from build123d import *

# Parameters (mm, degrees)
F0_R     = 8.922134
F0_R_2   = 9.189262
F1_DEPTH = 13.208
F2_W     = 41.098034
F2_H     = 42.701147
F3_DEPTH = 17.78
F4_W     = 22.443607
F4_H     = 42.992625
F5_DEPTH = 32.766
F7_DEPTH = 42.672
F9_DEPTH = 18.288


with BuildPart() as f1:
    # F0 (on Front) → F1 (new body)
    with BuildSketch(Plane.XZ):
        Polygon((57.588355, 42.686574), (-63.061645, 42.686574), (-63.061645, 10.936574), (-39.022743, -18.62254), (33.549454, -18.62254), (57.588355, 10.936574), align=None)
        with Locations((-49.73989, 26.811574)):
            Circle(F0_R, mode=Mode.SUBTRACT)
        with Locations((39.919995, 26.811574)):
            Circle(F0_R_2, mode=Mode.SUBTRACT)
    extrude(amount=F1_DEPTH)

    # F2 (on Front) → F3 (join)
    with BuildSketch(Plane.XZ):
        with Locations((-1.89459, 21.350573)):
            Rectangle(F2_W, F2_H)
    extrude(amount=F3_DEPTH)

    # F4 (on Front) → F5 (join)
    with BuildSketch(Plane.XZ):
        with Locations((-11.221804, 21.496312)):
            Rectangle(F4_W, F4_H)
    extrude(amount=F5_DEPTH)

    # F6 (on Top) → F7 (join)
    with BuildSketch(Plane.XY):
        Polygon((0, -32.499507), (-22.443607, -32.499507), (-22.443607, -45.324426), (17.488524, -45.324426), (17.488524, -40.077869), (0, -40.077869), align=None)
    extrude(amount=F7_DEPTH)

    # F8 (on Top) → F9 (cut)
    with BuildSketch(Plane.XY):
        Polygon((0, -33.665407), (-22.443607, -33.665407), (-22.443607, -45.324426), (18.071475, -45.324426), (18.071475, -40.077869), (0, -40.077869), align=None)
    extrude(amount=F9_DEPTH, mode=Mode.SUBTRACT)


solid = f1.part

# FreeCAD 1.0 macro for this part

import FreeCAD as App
import Part
import Sketcher

V = App.Vector
Q = App.Units.Quantity

doc = App.newDocument("Part")
body = doc.addObject("PartDesign::Body", "Body")

# Sketch on XZ plane
sketch1 = doc.addObject("Sketcher::SketchObject", "Sketch")
body.addObject(sketch1)
sketch1.AttachmentSupport = (doc.XZ_Plane, [""])
sketch1.MapMode = "FlatFace"
sketch1.addGeometry(Part.LineSegment(V(58, 43, 0), V(-63, 43, 0)), False)
sketch1.addGeometry(Part.LineSegment(V(-63, 43, 0), V(-63, 11, 0)), False)
sketch1.addGeometry(Part.LineSegment(V(-63, 11, 0), V(-39, -19, 0)), False)
sketch1.addGeometry(Part.LineSegment(V(-39, -19, 0), V(34, -19, 0)), False)
sketch1.addGeometry(Part.LineSegment(V(34, -19, 0), V(58, 11, 0)), False)
sketch1.addGeometry(Part.LineSegment(V(58, 11, 0), V(58, 43, 0)), False)
sketch1.addGeometry(Part.Circle(V(-50, 27, 0), V(0, 0, 1), 9), False)
sketch1.addGeometry(Part.Circle(V(40, 27, 0), V(0, 0, 1), 9), False)
sketch1.addConstraint(Sketcher.Constraint("Coincident", 0, 2, 1, 1))
sketch1.addConstraint(Sketcher.Constraint("Coincident", 1, 2, 2, 1))
sketch1.addConstraint(Sketcher.Constraint("Coincident", 2, 2, 3, 1))
sketch1.addConstraint(Sketcher.Constraint("Coincident", 3, 2, 4, 1))
sketch1.addConstraint(Sketcher.Constraint("Coincident", 4, 2, 5, 1))
sketch1.addConstraint(Sketcher.Constraint("Coincident", 5, 2, 0, 1))
sketch1.addConstraint(Sketcher.Constraint("Horizontal", 0))
sketch1.addConstraint(Sketcher.Constraint("Vertical", 1))
sketch1.addConstraint(Sketcher.Constraint("Horizontal", 3))
sketch1.addConstraint(Sketcher.Constraint("Vertical", 5))
sketch1.addConstraint(Sketcher.Constraint("Horizontal", 6, 3, 7, 3))
sketch1.addConstraint(Sketcher.Constraint("Horizontal", 1, 2, 4, 2))
sketch1.addConstraint(Sketcher.Constraint("Equal", 2, 4))
sketch1.addConstraint(Sketcher.Constraint("Distance", 2, Q("1.5 in")))
sketch1.addConstraint(Sketcher.Constraint("DistanceX", 0, 2, 0, 1, Q("4.75 in")))
sketch1.addConstraint(Sketcher.Constraint("DistanceY", 1, 2, 1, 1, Q("1.25 in")))
sketch1.addConstraint(Sketcher.Constraint("DistanceY", 6, 3, 0, 2, Q("0.625 in")))
sketch1.addConstraint(Sketcher.Constraint("Diameter", 6, 17.844268))
sketch1.addConstraint(Sketcher.Constraint("Diameter", 7, 18.378524))
sketch1.addConstraint(Sketcher.Constraint("DistanceX", 1, 2, 2, 2, 24.038902))
sketch1.addConstraint(Sketcher.Constraint("DistanceX", 6, 3, -1, 1, 49.73989))
sketch1.addConstraint(Sketcher.Constraint("DistanceY", 2, 2, -1, 1, 18.62254))
sketch1.addConstraint(Sketcher.Constraint("DistanceX", 0, 2, 7, 3, 102.98164))
sketch1.addConstraint(Sketcher.Constraint("DistanceX", -1, 1, 7, 3, 39.919995))
pad1 = doc.addObject("PartDesign::Pad", "Pad")
body.addObject(pad1)
pad1.Profile = sketch1
pad1.Length = Q("0.52 in")

# Sketch on XZ plane
sketch2 = doc.addObject("Sketcher::SketchObject", "Sketch001")
body.addObject(sketch2)
sketch2.AttachmentSupport = (doc.XZ_Plane, [""])
sketch2.MapMode = "FlatFace"
sketch2.addGeometry(Part.LineSegment(V(-22, 43, 0), V(-22, 0, 0)), False)
sketch2.addGeometry(Part.LineSegment(V(-22, 0, 0), V(19, 0, 0)), False)
sketch2.addGeometry(Part.LineSegment(V(19, 0, 0), V(19, 43, 0)), False)
sketch2.addGeometry(Part.LineSegment(V(19, 43, 0), V(-22, 43, 0)), False)
sketch2.addConstraint(Sketcher.Constraint("Coincident", 0, 2, 1, 1))
sketch2.addConstraint(Sketcher.Constraint("Coincident", 1, 2, 2, 1))
sketch2.addConstraint(Sketcher.Constraint("Coincident", 2, 2, 3, 1))
sketch2.addConstraint(Sketcher.Constraint("Coincident", 3, 2, 0, 1))
sketch2.addConstraint(Sketcher.Constraint("Vertical", 0))
sketch2.addConstraint(Sketcher.Constraint("Horizontal", 1))
sketch2.addConstraint(Sketcher.Constraint("Vertical", 2))
sketch2.addConstraint(Sketcher.Constraint("Horizontal", 3))
sketch2.addConstraint(Sketcher.Constraint("PointOnObject", 0, 2, -1))
sketch2.addConstraint(Sketcher.Constraint("DistanceX", 1, 1, 1, 2, 41.098034))
sketch2.addConstraint(Sketcher.Constraint("DistanceY", 0, 2, 0, 1, 42.701147))
sketch2.addConstraint(Sketcher.Constraint("DistanceX", 0, 2, -1, 1, 22.443607))
pad2 = doc.addObject("PartDesign::Pad", "Pad001")
body.addObject(pad2)
pad2.Profile = sketch2
pad2.Length = Q("0.7 in")

# Sketch on XZ plane
sketch3 = doc.addObject("Sketcher::SketchObject", "Sketch002")
body.addObject(sketch3)
sketch3.AttachmentSupport = (doc.XZ_Plane, [""])
sketch3.MapMode = "FlatFace"
sketch3.addGeometry(Part.LineSegment(V(-22, 43, 0), V(-22, 0, 0)), False)
sketch3.addGeometry(Part.LineSegment(V(-22, 0, 0), V(0, 0, 0)), False)
sketch3.addGeometry(Part.LineSegment(V(0, 0, 0), V(0, 43, 0)), False)
sketch3.addGeometry(Part.LineSegment(V(0, 43, 0), V(-22, 43, 0)), False)
sketch3.addConstraint(Sketcher.Constraint("Coincident", 0, 2, 1, 1))
sketch3.addConstraint(Sketcher.Constraint("Coincident", 1, 2, 2, 1))
sketch3.addConstraint(Sketcher.Constraint("Coincident", 2, 2, 3, 1))
sketch3.addConstraint(Sketcher.Constraint("Coincident", 3, 2, 0, 1))
sketch3.addConstraint(Sketcher.Constraint("Vertical", 0))
sketch3.addConstraint(Sketcher.Constraint("Horizontal", 1))
sketch3.addConstraint(Sketcher.Constraint("Vertical", 2))
sketch3.addConstraint(Sketcher.Constraint("Horizontal", 3))
sketch3.addConstraint(Sketcher.Constraint("Coincident", 1, 2, -1, 1))
sketch3.addConstraint(Sketcher.Constraint("DistanceX", 1, 1, 1, 2, 22.443607))
sketch3.addConstraint(Sketcher.Constraint("DistanceY", 0, 2, 0, 1, 42.992625))
pad3 = doc.addObject("PartDesign::Pad", "Pad002")
body.addObject(pad3)
pad3.Profile = sketch3
pad3.Length = Q("1.29 in")

# Sketch on XY plane
sketch4 = doc.addObject("Sketcher::SketchObject", "Sketch003")
body.addObject(sketch4)
sketch4.AttachmentSupport = (doc.XY_Plane, [""])
sketch4.MapMode = "FlatFace"
sketch4.addGeometry(Part.LineSegment(V(0, -32, 0), V(-22, -32, 0)), False)
sketch4.addGeometry(Part.LineSegment(V(-22, -32, 0), V(-22, -45, 0)), False)
sketch4.addGeometry(Part.LineSegment(V(-22, -45, 0), V(17, -45, 0)), False)
sketch4.addGeometry(Part.LineSegment(V(17, -45, 0), V(17, -40, 0)), False)
sketch4.addGeometry(Part.LineSegment(V(17, -40, 0), V(0, -40, 0)), False)
sketch4.addGeometry(Part.LineSegment(V(0, -40, 0), V(0, -32, 0)), False)
sketch4.addConstraint(Sketcher.Constraint("Coincident", 0, 2, 1, 1))
sketch4.addConstraint(Sketcher.Constraint("Coincident", 1, 2, 2, 1))
sketch4.addConstraint(Sketcher.Constraint("Coincident", 2, 2, 3, 1))
sketch4.addConstraint(Sketcher.Constraint("Coincident", 3, 2, 4, 1))
sketch4.addConstraint(Sketcher.Constraint("Coincident", 4, 2, 5, 1))
sketch4.addConstraint(Sketcher.Constraint("Coincident", 5, 2, 0, 1))
sketch4.addConstraint(Sketcher.Constraint("Horizontal", 0))
sketch4.addConstraint(Sketcher.Constraint("Vertical", 1))
sketch4.addConstraint(Sketcher.Constraint("Horizontal", 2))
sketch4.addConstraint(Sketcher.Constraint("Vertical", 3))
sketch4.addConstraint(Sketcher.Constraint("Horizontal", 4))
sketch4.addConstraint(Sketcher.Constraint("Vertical", 5))
sketch4.addConstraint(Sketcher.Constraint("PointOnObject", 4, 2, -2))
sketch4.addConstraint(Sketcher.Constraint("DistanceX", 2, 1, 2, 2, 39.932131))
sketch4.addConstraint(Sketcher.Constraint("DistanceY", 1, 2, 1, 1, 12.824919))
sketch4.addConstraint(Sketcher.Constraint("DistanceY", 5, 1, 5, 2, 7.578362))
sketch4.addConstraint(Sketcher.Constraint("DistanceX", 0, 2, 0, 1, 22.443607))
sketch4.addConstraint(Sketcher.Constraint("DistanceY", 3, 2, -1, 1, 40.077869))
pad4 = doc.addObject("PartDesign::Pad", "Pad003")
body.addObject(pad4)
pad4.Profile = sketch4
pad4.Length = Q("1.68 in")

# Sketch on XY plane
sketch5 = doc.addObject("Sketcher::SketchObject", "Sketch004")
body.addObject(sketch5)
sketch5.AttachmentSupport = (doc.XY_Plane, [""])
sketch5.MapMode = "FlatFace"
sketch5.addGeometry(Part.LineSegment(V(0, -34, 0), V(-22, -34, 0)), False)
sketch5.addGeometry(Part.LineSegment(V(-22, -34, 0), V(-22, -45, 0)), False)
sketch5.addGeometry(Part.LineSegment(V(-22, -45, 0), V(18, -45, 0)), False)
sketch5.addGeometry(Part.LineSegment(V(18, -45, 0), V(18, -40, 0)), False)
sketch5.addGeometry(Part.LineSegment(V(18, -40, 0), V(0, -40, 0)), False)
sketch5.addGeometry(Part.LineSegment(V(0, -40, 0), V(0, -34, 0)), False)
sketch5.addConstraint(Sketcher.Constraint("Coincident", 0, 2, 1, 1))
sketch5.addConstraint(Sketcher.Constraint("Coincident", 1, 2, 2, 1))
sketch5.addConstraint(Sketcher.Constraint("Coincident", 2, 2, 3, 1))
sketch5.addConstraint(Sketcher.Constraint("Coincident", 3, 2, 4, 1))
sketch5.addConstraint(Sketcher.Constraint("Coincident", 4, 2, 5, 1))
sketch5.addConstraint(Sketcher.Constraint("Coincident", 5, 2, 0, 1))
sketch5.addConstraint(Sketcher.Constraint("Horizontal", 0))
sketch5.addConstraint(Sketcher.Constraint("Vertical", 1))
sketch5.addConstraint(Sketcher.Constraint("Horizontal", 2))
sketch5.addConstraint(Sketcher.Constraint("Vertical", 3))
sketch5.addConstraint(Sketcher.Constraint("Horizontal", 4))
sketch5.addConstraint(Sketcher.Constraint("Vertical", 5))
sketch5.addConstraint(Sketcher.Constraint("PointOnObject", 4, 2, -2))
sketch5.addConstraint(Sketcher.Constraint("DistanceY", 1, 2, 1, 1, 11.659019))
sketch5.addConstraint(Sketcher.Constraint("DistanceY", 5, 1, 5, 2, 6.412462))
sketch5.addConstraint(Sketcher.Constraint("DistanceX", 0, 2, 0, 1, 22.443607))
sketch5.addConstraint(Sketcher.Constraint("DistanceX", 2, 1, 2, 2, 40.515082))
sketch5.addConstraint(Sketcher.Constraint("DistanceY", 3, 2, -1, 1, 40.077869))
pocket1 = doc.addObject("PartDesign::Pocket", "Pocket")
body.addObject(pocket1)
pocket1.Profile = sketch5
pocket1.Length = Q("0.72 in")
pocket1.Reversed = True

doc.recompute()
